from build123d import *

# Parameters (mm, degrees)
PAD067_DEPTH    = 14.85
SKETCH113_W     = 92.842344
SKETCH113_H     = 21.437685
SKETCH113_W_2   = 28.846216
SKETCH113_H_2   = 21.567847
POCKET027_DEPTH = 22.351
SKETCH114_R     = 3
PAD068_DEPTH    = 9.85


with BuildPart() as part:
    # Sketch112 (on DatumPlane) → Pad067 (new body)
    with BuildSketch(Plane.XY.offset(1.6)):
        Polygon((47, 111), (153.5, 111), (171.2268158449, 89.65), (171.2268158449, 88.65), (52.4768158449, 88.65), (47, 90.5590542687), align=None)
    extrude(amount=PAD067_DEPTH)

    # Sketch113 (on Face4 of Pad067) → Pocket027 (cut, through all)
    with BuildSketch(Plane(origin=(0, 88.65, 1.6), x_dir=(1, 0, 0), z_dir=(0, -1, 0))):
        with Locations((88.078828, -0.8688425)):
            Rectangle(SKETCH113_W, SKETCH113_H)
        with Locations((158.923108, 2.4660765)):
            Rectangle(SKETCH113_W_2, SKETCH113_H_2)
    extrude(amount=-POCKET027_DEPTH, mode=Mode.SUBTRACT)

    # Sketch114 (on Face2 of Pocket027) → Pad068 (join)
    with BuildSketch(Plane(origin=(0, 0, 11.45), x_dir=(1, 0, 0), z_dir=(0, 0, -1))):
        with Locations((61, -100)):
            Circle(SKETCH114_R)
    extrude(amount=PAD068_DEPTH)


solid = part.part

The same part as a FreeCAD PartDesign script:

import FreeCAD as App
import Part
import Sketcher
from FreeCAD import Vector
Q = App.Units.Quantity

doc = App.newDocument("Part")
params = doc.addObject("Spreadsheet::Sheet", "Params")
for row, (alias, value) in enumerate([
    ("sketch1_height", "1 mm"),
    ("sketch1_width", "106.5 mm"),
    ("sketch1_length", "5.8 mm"),
    ("sketch1_width2", "118.75 mm"),
    ("sketch1_length2", "27.75 mm"),
    ("pad1_length", "14.85 mm"),
    ("sketch3_diameter", "6 mm"),
    ("pad2_length", "9.85 mm"),
], start=1):
    params.set(f"A{row}", alias)
    params.set(f"B{row}", "=" + value)
    params.setAlias(f"B{row}", alias)

body = doc.addObject("PartDesign::Body", "Body")

sketch1 = body.newObject("Sketcher::SketchObject", "Sketch")
sketch1.AttachmentSupport = (doc.getObject("XY_Plane"), [""])
sketch1.MapMode = "FlatFace"
sketch1.AttachmentOffset = App.Placement(Vector(0, 0, 1.6), App.Rotation())
sketch1.addGeometry([
    Part.LineSegment(Vector(153.5, 111, 0), Vector(47, 111, 0)),
    Part.LineSegment(Vector(47, 111, 0), Vector(47, 90.6, 0)),
    Part.LineSegment(Vector(47, 90.6, 0), Vector(52.5, 88.7, 0)),
    Part.LineSegment(Vector(52.5, 88.7, 0), Vector(171.2, 88.7, 0)),
    Part.LineSegment(Vector(171.2, 88.7, 0), Vector(171.2, 89.7, 0)),
    Part.LineSegment(Vector(171.2, 89.7, 0), Vector(153.5, 111, 0)),
], False)
sketch1.addConstraint([
    Sketcher.Constraint("Coincident", 0, 2, 1, 1),
    Sketcher.Constraint("Coincident", 1, 2, 2, 1),
    Sketcher.Constraint("Coincident", 2, 2, 3, 1),
    Sketcher.Constraint("Coincident", 3, 2, 4, 1),
    Sketcher.Constraint("Coincident", 4, 2, 5, 1),
    Sketcher.Constraint("Coincident", 5, 2, 0, 1),
    Sketcher.Constraint("Horizontal", 0),
    Sketcher.Constraint("Vertical", 1),
    Sketcher.Constraint("Horizontal", 3),
    Sketcher.Constraint("Vertical", 4),
    Sketcher.Constraint("DistanceY", 4, 1, 4, 2, Q("1 mm")),
    Sketcher.Constraint("DistanceX", 0, 2, 0, 1, Q("106.5 mm")),
    Sketcher.Constraint("DistanceX", -1, 1, 0, 2, Q("47 mm")),
    Sketcher.Constraint("DistanceY", -1, 1, 0, 2, Q("111 mm")),
    Sketcher.Constraint("Distance", 2, Q("5.8 mm")),
    Sketcher.Constraint("DistanceX", 3, 1, 3, 2, Q("118.75 mm")),
    Sketcher.Constraint("Distance", 5, Q("27.75 mm")),
    Sketcher.Constraint("DistanceY", -1, 1, 2, 2, Q("88.65 mm")),
])
sketch1.setExpression("Constraints[10]", "Params.sketch1_height")
sketch1.setExpression("Constraints[11]", "Params.sketch1_width")
sketch1.setExpression("Constraints[14]", "Params.sketch1_length")
sketch1.setExpression("Constraints[15]", "Params.sketch1_width2")
sketch1.setExpression("Constraints[16]", "Params.sketch1_length2")
pad1 = body.newObject("PartDesign::Pad", "Pad")
pad1.Profile = sketch1
pad1.setExpression("Length", "Params.pad1_length")

sketch2 = body.newObject("Sketcher::SketchObject", "Sketch001")
sketch2.AttachmentSupport = (doc.getObject("XZ_Plane"), [""])
sketch2.MapMode = "FlatFace"
sketch2.AttachmentOffset = App.Placement(Vector(0, 0, -88.65), App.Rotation())
sketch2.addGeometry([
    Part.LineSegment(Vector(42, 11, 0), Vector(42, -10, 0)),
    Part.LineSegment(Vector(42, -10, 0), Vector(134, -10, 0)),
    Part.LineSegment(Vector(134, -10, 0), Vector(134, 11, 0)),
    Part.LineSegment(Vector(134, 11, 0), Vector(42, 11, 0)),
    Part.LineSegment(Vector(144, 15, 0), Vector(144, -7, 0)),
    Part.LineSegment(Vector(144, -7, 0), Vector(173, -7, 0)),
    Part.LineSegment(Vector(173, -7, 0), Vector(173, 15, 0)),
    Part.LineSegment(Vector(173, 15, 0), Vector(144, 15, 0)),
], False)
sketch2.addConstraint([
    Sketcher.Constraint("Coincident", 0, 2, 1, 1),
    Sketcher.Constraint("Coincident", 1, 2, 2, 1),
    Sketcher.Constraint("Coincident", 2, 2, 3, 1),
    Sketcher.Constraint("Coincident", 3, 2, 0, 1),
    Sketcher.Constraint("Coincident", 4, 2, 5, 1),
    Sketcher.Constraint("Coincident", 5, 2, 6, 1),
    Sketcher.Constraint("Coincident", 6, 2, 7, 1),
    Sketcher.Constraint("Coincident", 7, 2, 4, 1),
    Sketcher.Constraint("Vertical", 0),
    Sketcher.Constraint("Horizontal", 1),
    Sketcher.Constraint("Vertical", 2),
    Sketcher.Constraint("Horizontal", 3),
    Sketcher.Constraint("Vertical", 4),
    Sketcher.Constraint("Horizontal", 5),
    Sketcher.Constraint("Vertical", 6),
    Sketcher.Constraint("Horizontal", 7),
    Sketcher.Constraint("DistanceX", 1, 2, 4, 2, Q("10 mm")),
    Sketcher.Constraint("DistanceX", -1, 1, 1, 2, Q("134.5 mm")),
    Sketcher.Constraint("DistanceY", 2, 2, 6, 2, Q("3.4 mm")),
    Sketcher.Constraint("DistanceY", -1, 1, 2, 2, Q("11.45 mm")),
    Sketcher.Constraint("DistanceX", 1, 1, 1, 2, Q("92.842344 mm")),
    Sketcher.Constraint("DistanceX", 5, 1, 5, 2, Q("28.846216 mm")),
    Sketcher.Constraint("DistanceY", 0, 2, 0, 1, Q("21.437685 mm")),
    Sketcher.Constraint("DistanceY", 4, 2, 4, 1, Q("21.567847 mm")),
])
pocket1 = body.newObject("PartDesign::Pocket", "Pocket")
pocket1.Profile = sketch2
pocket1.Type = "ThroughAll"

sketch3 = body.newObject("Sketcher::SketchObject", "Sketch002")
sketch3.AttachmentSupport = (doc.getObject("XY_Plane"), [""])
sketch3.MapMode = "FlatFace"
sketch3.AttachmentOffset = App.Placement(Vector(0, 0, 11.45), App.Rotation())
sketch3.addGeometry(Part.Circle(Vector(61, 100, 0), Vector(0, 0, 1), 3), False)
sketch3.addConstraint([
    Sketcher.Constraint("Diameter", 0, Q("6 mm")),
    Sketcher.Constraint("DistanceX", -1, 1, 0, 3, Q("61 mm")),
    Sketcher.Constraint("DistanceY", -1, 1, 0, 3, Q("100 mm")),
])
sketch3.setExpression("Constraints[0]", "Params.sketch3_diameter")
pad2 = body.newObject("PartDesign::Pad", "Pad001")
pad2.Profile = sketch3
pad2.setExpression("Length", "Params.pad2_length")
pad2.Reversed = True

doc.recompute()
